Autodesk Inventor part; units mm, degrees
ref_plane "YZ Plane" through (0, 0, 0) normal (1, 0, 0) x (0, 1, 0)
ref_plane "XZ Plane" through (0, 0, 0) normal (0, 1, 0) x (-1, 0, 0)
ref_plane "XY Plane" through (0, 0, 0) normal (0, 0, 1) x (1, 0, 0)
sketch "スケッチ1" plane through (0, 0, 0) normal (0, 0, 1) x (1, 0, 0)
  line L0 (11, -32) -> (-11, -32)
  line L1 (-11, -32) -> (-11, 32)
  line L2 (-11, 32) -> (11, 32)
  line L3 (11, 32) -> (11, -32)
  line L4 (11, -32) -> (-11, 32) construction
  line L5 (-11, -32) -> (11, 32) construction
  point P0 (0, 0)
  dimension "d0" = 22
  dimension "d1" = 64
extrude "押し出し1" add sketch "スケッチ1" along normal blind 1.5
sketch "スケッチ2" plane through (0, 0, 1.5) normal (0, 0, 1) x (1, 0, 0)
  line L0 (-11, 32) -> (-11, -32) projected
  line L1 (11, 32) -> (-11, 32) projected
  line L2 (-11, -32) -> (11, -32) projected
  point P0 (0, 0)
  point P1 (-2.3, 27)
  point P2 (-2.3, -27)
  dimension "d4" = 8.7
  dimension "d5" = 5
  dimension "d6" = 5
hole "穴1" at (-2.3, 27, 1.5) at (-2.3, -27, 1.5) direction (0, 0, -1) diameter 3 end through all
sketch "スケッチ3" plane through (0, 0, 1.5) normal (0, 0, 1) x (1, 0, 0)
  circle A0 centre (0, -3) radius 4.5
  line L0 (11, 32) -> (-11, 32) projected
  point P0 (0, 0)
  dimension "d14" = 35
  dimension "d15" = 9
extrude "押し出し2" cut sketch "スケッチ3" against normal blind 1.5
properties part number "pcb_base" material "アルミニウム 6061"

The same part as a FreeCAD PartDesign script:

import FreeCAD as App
import Part
import Sketcher


def add_polygon(sketch, points):
    """Adds a closed chain of lines whose ends are joined by coincident constraints."""
    first, n = sketch.GeometryCount, len(points)
    for a, b in zip(points, points[1:] + points[:1]):
        sketch.addGeometry(Part.LineSegment(App.Vector(*a, 0), App.Vector(*b, 0)), False)
    for i in range(n):
        sketch.addConstraint(Sketcher.Constraint("Coincident", first + i, 2, first + (i + 1) % n, 1))

doc = App.newDocument("Part")
body = doc.addObject("PartDesign::Body", "Body")

sketch1 = body.newObject("Sketcher::SketchObject", "Sketch")
sketch1.AttachmentSupport = (doc.getObject("XY_Plane"), [""])
sketch1.MapMode = "FlatFace"
add_polygon(sketch1, [(-11, -32), (11, -32), (11, 32), (-11, 32)])
sketch1.addConstraint([
    Sketcher.Constraint("Horizontal", 0),
    Sketcher.Constraint("Vertical", 1),
    Sketcher.Constraint("Horizontal", 2),
    Sketcher.Constraint("Vertical", 3),
    Sketcher.Constraint("Symmetric", 0, 2, 2, 2, -1, 1),
    Sketcher.Constraint("DistanceX", 0, 1, 0, 2, 22.0),
    Sketcher.Constraint("DistanceY", 1, 1, 1, 2, 64.0),
])
pad1 = body.newObject("PartDesign::Pad", "Pad")
pad1.Profile = sketch1
pad1.Length = 1.5

sketch2 = body.newObject("Sketcher::SketchObject", "Sketch001")
sketch2.AttachmentSupport = (doc.getObject("XY_Plane"), [""])
sketch2.MapMode = "FlatFace"
sketch2.AttachmentOffset = App.Placement(App.Vector(0, 0, 1.5), App.Rotation())
sketch2.addGeometry([
    Part.Circle(App.Vector(-2.3, 27, 0), App.Vector(0, 0, 1), 1.5),
    Part.Circle(App.Vector(-2.3, -27, 0), App.Vector(0, 0, 1), 1.5),
], False)
sketch2.addConstraint([
    Sketcher.Constraint("Equal", 0, 1),
    Sketcher.Constraint("Symmetric", 0, 3, 1, 3, -1),
    Sketcher.Constraint("Diameter", 0, 3.0),
    Sketcher.Constraint("DistanceY", -1, 1, 0, 3, 27.0),
    Sketcher.Constraint("DistanceX", 0, 3, -1, 1, 2.3),
])
doc.recompute()
hole = body.newObject("PartDesign::Hole", "Hole")
hole.Profile = sketch2
hole.ThreadType = "None"
hole.Diameter = 3
hole.DepthType = "ThroughAll"

sketch3 = body.newObject("Sketcher::SketchObject", "Sketch002")
sketch3.AttachmentSupport = (doc.getObject("XY_Plane"), [""])
sketch3.MapMode = "FlatFace"
sketch3.AttachmentOffset = App.Placement(App.Vector(0, 0, 1.5), App.Rotation())
sketch3.addGeometry(Part.Circle(App.Vector(0, -3, 0), App.Vector(0, 0, 1), 4.5), False)
sketch3.addConstraint([
    Sketcher.Constraint("PointOnObject", 0, 3, -2),
    Sketcher.Constraint("Diameter", 0, 9.0),
    Sketcher.Constraint("DistanceY", 0, 3, -1, 1, 3.0),
])
pocket1 = body.newObject("PartDesign::Pocket", "Pocket")
pocket1.Profile = sketch3
pocket1.Length = 1.5

doc.recompute()
